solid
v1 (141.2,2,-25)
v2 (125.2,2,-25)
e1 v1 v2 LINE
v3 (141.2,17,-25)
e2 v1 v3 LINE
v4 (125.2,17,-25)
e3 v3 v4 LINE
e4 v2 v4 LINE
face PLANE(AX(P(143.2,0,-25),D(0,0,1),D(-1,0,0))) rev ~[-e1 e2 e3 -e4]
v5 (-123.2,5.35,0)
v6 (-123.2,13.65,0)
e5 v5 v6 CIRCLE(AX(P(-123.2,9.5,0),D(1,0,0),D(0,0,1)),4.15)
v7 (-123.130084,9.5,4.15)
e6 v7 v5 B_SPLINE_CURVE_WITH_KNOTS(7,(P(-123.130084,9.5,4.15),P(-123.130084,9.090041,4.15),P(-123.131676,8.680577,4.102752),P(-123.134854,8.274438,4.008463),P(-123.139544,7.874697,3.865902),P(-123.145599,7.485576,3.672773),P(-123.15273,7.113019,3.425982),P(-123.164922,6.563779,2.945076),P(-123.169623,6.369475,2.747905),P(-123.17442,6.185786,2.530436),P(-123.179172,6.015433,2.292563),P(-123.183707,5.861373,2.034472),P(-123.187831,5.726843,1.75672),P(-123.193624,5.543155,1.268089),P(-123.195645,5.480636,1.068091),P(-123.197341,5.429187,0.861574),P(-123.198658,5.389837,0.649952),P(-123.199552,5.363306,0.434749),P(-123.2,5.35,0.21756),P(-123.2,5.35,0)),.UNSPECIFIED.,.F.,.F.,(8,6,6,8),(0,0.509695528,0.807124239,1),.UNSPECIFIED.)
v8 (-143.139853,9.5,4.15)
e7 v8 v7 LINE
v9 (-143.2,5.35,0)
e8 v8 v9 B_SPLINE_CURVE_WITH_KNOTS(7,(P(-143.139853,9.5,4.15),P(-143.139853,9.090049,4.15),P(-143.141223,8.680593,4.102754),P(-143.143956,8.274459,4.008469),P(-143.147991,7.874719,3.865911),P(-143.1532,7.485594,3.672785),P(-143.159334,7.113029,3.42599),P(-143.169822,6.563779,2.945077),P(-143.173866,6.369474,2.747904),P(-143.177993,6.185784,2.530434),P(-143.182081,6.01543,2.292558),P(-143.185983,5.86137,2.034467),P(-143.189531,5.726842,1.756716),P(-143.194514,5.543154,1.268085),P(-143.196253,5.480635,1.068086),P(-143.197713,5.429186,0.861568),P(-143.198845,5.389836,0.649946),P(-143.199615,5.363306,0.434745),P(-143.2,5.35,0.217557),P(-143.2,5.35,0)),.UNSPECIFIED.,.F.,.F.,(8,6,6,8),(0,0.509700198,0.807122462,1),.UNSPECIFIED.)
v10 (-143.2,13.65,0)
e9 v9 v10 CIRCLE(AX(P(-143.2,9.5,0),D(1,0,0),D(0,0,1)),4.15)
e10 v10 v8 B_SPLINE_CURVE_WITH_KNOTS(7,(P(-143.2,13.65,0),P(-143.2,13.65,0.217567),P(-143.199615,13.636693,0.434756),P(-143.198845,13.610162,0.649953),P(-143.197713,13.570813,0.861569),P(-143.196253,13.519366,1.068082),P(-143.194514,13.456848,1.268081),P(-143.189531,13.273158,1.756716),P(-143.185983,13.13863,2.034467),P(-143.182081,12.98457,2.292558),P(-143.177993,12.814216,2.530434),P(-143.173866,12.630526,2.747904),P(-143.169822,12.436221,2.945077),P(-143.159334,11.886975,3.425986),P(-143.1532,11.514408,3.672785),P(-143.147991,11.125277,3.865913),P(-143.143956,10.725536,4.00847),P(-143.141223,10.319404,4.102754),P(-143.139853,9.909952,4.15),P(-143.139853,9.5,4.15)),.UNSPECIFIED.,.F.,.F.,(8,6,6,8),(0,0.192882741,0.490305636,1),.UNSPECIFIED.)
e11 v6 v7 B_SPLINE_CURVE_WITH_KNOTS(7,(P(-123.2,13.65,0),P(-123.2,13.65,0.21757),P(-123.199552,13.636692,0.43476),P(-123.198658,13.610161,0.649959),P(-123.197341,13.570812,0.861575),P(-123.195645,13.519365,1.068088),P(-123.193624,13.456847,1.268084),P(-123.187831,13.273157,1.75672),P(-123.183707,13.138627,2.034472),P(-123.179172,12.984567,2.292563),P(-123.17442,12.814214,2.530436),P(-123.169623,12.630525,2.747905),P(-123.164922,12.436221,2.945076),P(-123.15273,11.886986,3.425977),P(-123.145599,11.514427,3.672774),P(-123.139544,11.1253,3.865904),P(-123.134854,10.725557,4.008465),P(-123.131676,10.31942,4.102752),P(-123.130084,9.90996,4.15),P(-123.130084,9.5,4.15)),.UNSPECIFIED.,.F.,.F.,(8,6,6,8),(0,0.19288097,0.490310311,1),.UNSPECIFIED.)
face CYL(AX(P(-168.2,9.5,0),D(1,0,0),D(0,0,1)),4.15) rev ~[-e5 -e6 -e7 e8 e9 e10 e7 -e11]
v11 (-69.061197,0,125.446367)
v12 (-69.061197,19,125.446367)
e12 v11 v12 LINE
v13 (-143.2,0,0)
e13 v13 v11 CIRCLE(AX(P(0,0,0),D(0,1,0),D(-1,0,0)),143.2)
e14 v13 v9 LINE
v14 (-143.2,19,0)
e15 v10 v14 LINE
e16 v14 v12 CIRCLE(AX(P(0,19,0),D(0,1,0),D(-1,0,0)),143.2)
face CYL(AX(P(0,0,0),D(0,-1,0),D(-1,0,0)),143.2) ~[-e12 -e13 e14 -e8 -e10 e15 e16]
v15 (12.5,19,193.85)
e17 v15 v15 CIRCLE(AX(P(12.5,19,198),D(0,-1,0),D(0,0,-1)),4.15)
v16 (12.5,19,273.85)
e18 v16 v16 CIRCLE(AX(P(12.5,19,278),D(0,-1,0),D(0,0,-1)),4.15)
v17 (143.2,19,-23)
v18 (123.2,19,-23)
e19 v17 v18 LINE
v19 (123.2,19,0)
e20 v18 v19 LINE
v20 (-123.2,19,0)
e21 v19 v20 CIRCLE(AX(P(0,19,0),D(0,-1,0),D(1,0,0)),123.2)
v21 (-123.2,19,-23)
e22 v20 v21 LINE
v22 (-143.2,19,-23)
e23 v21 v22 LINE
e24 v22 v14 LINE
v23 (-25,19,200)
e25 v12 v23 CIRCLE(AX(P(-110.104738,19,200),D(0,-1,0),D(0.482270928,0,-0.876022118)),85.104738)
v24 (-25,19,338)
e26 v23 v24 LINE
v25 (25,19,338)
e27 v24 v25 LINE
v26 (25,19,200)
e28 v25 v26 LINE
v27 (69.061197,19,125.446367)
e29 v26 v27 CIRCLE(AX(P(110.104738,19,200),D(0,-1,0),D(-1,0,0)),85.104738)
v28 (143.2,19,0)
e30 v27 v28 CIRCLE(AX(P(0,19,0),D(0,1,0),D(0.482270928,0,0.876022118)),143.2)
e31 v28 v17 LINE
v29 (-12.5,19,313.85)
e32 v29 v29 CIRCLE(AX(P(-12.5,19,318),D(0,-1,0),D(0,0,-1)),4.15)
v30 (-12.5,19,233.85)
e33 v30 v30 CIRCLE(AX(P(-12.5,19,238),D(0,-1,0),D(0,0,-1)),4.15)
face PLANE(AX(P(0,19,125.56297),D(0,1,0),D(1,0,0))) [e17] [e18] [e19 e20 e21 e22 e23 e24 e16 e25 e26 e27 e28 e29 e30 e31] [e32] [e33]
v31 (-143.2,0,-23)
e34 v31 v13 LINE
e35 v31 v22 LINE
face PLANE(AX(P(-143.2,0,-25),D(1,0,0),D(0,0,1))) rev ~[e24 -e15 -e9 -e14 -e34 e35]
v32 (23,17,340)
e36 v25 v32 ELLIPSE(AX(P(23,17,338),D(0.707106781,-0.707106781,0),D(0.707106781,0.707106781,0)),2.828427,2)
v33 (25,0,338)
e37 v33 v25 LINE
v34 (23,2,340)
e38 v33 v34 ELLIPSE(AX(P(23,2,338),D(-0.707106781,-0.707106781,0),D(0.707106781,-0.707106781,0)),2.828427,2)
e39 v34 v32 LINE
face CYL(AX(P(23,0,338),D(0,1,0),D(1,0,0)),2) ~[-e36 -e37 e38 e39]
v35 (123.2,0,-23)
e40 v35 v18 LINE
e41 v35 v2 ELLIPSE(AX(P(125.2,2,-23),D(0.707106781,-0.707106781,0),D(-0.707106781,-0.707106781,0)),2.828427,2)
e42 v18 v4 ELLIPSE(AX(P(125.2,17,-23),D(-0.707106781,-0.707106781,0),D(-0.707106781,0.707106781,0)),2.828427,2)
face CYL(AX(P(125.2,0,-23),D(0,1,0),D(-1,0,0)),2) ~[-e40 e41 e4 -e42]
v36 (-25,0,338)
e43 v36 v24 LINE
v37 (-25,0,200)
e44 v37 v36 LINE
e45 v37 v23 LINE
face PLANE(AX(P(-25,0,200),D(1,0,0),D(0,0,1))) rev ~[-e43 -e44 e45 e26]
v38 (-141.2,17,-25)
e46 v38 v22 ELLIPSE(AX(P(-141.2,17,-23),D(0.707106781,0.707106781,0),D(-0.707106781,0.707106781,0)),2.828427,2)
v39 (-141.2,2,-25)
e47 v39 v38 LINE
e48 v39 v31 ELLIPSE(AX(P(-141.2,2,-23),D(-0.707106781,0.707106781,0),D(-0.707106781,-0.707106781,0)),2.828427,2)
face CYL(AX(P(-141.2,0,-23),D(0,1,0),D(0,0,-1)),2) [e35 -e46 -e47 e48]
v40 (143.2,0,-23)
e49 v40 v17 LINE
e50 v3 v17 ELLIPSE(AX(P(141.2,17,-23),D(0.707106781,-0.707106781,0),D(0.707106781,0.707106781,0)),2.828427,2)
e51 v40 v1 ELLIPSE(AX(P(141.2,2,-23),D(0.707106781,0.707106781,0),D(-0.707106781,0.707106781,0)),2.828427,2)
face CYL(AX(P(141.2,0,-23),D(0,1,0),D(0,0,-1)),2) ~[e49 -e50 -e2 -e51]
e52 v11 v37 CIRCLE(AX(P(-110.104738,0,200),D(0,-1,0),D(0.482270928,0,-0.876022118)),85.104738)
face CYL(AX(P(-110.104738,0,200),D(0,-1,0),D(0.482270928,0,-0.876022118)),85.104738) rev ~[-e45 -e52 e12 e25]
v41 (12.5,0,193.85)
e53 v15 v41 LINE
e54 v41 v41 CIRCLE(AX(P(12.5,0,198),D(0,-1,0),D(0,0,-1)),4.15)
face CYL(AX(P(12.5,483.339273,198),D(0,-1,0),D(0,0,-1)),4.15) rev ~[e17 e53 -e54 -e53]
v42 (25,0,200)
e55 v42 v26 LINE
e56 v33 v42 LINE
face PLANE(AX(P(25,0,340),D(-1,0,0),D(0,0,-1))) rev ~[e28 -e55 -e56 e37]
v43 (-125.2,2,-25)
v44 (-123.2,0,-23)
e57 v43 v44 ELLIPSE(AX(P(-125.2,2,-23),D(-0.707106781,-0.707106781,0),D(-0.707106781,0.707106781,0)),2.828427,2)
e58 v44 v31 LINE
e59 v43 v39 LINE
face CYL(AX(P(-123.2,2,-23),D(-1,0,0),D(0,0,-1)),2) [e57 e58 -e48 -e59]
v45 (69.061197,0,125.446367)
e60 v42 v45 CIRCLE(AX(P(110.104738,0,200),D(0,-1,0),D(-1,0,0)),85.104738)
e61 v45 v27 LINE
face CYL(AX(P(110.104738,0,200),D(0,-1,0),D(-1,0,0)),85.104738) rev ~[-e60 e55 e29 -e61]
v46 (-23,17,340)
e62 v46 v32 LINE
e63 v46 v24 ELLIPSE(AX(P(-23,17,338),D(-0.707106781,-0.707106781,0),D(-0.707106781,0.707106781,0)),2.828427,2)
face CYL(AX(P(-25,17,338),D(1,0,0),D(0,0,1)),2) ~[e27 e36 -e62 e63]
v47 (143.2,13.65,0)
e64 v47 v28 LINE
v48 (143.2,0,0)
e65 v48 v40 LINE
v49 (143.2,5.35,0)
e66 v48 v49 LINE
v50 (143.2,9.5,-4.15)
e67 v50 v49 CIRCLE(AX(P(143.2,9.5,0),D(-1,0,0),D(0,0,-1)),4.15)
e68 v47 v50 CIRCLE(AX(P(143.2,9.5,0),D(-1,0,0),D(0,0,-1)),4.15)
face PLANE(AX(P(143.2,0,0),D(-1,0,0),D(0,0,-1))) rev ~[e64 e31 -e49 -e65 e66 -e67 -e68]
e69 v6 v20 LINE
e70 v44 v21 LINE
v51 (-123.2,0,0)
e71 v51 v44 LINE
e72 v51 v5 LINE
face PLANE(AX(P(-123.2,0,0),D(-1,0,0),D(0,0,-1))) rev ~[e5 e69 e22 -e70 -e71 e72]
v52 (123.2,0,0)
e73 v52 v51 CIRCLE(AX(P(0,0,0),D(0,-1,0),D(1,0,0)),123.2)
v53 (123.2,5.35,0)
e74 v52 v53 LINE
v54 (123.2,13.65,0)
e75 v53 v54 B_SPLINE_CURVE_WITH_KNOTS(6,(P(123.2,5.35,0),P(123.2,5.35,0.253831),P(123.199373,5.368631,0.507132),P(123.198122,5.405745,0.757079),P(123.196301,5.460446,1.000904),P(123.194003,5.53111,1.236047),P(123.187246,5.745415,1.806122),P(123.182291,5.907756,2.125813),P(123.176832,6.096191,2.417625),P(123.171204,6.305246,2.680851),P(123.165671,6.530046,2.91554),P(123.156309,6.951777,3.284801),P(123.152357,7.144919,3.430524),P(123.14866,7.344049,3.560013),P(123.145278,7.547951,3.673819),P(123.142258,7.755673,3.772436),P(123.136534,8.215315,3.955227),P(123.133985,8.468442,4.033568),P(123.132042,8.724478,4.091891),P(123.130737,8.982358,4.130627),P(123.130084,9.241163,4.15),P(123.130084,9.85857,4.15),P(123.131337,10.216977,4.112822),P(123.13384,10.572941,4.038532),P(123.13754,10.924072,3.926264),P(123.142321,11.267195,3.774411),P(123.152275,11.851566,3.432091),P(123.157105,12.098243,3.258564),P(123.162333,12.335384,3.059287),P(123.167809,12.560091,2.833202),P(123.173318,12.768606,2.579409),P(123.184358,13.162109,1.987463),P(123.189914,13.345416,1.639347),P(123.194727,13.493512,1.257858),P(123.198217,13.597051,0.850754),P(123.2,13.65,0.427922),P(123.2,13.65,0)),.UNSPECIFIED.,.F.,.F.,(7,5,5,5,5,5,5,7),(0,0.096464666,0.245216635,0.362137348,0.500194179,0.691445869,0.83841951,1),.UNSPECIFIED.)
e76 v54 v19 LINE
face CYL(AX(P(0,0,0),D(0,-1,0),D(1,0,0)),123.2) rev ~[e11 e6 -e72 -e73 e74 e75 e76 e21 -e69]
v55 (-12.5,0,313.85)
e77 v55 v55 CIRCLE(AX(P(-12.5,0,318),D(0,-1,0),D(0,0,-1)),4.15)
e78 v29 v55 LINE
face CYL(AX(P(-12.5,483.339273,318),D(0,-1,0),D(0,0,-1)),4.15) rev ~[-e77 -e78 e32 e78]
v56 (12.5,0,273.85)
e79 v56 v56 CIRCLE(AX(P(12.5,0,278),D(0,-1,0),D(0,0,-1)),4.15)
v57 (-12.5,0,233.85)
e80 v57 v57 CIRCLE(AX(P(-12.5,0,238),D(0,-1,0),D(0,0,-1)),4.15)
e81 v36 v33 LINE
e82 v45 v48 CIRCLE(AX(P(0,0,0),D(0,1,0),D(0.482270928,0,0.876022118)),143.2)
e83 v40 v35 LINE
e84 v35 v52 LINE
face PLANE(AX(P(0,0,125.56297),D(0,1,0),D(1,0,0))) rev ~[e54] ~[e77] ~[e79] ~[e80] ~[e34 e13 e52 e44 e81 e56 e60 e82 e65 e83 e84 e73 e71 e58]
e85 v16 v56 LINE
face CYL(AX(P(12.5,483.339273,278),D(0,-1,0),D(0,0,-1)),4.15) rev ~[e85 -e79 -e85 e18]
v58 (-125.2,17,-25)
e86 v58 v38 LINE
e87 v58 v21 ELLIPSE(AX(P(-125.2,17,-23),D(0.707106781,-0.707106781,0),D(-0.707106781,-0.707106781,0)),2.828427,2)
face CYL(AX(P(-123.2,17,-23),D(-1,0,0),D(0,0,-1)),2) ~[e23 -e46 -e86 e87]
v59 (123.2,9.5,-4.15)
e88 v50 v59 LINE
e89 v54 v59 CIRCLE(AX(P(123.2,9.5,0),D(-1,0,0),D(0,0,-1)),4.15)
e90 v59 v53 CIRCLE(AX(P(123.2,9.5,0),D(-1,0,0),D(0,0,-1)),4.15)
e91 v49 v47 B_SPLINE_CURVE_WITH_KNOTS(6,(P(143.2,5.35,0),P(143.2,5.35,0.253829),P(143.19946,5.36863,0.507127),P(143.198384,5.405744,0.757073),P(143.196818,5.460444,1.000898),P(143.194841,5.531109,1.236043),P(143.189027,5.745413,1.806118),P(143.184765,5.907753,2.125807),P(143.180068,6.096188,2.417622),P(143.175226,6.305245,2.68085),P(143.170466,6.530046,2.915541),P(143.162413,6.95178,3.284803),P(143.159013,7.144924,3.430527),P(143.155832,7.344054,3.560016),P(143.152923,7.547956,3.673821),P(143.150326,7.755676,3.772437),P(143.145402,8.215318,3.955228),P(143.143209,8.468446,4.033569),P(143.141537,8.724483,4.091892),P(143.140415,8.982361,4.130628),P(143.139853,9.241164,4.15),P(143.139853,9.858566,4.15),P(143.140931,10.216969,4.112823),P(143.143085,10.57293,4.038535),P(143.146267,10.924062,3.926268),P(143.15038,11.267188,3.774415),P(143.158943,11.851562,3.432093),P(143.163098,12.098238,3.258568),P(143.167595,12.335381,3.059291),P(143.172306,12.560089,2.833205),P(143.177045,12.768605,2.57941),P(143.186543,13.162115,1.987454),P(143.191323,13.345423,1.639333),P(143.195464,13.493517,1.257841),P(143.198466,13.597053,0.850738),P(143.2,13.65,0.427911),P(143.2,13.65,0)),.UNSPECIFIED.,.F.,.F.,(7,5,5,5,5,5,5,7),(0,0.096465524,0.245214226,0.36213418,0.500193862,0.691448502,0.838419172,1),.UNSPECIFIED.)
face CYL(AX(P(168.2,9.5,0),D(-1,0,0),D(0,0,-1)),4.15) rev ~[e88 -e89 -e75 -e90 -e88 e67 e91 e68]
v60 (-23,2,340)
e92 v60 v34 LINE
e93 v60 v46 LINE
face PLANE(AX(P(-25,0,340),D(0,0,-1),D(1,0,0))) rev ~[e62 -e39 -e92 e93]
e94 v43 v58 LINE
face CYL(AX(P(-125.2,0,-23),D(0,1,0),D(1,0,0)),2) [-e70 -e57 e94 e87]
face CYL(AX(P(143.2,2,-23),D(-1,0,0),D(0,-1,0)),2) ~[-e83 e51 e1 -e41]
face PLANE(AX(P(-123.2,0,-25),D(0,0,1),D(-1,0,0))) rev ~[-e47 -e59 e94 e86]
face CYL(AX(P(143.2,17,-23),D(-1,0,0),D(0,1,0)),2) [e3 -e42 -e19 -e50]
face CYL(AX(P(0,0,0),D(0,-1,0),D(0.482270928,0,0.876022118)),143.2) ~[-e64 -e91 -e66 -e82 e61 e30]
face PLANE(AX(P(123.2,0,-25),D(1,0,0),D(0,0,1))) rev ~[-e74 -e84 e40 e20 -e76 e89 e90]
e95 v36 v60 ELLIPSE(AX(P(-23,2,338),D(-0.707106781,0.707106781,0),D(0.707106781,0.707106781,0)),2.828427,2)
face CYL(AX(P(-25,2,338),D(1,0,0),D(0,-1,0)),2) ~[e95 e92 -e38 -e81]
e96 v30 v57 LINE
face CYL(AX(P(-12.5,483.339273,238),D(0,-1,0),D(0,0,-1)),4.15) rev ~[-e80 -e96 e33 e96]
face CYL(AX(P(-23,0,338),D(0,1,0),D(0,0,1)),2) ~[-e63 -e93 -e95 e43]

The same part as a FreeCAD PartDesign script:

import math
import FreeCAD as App
import Part
import Sketcher


def edges_at(feature, points):
    """Names of the edges that pass closest to the given points."""
    edges = feature.Shape.Edges
    near = lambda p: min(range(len(edges)), key=lambda i: edges[i].distToShape(Part.Vertex(*p))[0])
    return sorted({f"Edge{near(p) + 1}" for p in points})

doc = App.newDocument("Part")
body = doc.addObject("PartDesign::Body", "Body")

sketch1 = body.newObject("Sketcher::SketchObject", "Sketch")
sketch1.AttachmentSupport = (doc.getObject("XZ_Plane"), [""])
sketch1.MapMode = "FlatFace"
sketch1.addGeometry([
    Part.LineSegment(App.Vector(-25, 200, 0), App.Vector(-25, 340, 0)),
    Part.LineSegment(App.Vector(-25, 340, 0), App.Vector(25, 340, 0)),
    Part.LineSegment(App.Vector(25, 340, 0), App.Vector(25, 200, 0)),
    Part.ArcOfCircle(Part.Circle(App.Vector(110, 200, 0), App.Vector(0, 0, 1), 85), math.radians(-180), math.radians(-119)),
    Part.ArcOfCircle(Part.Circle(App.Vector(0, 0, 0), App.Vector(0, 0, 1), 143), math.radians(0), math.radians(61)),
    Part.LineSegment(App.Vector(143, 0, 0), App.Vector(143, -25, 0)),
    Part.LineSegment(App.Vector(143, -25, 0), App.Vector(123, -25, 0)),
    Part.LineSegment(App.Vector(123, -25, 0), App.Vector(123, 0, 0)),
    Part.ArcOfCircle(Part.Circle(App.Vector(0, 0, 0), App.Vector(0, 0, 1), 123), math.radians(0), math.radians(180)),
    Part.LineSegment(App.Vector(-123, 0, 0), App.Vector(-123, -25, 0)),
    Part.LineSegment(App.Vector(-123, -25, 0), App.Vector(-143, -25, 0)),
    Part.LineSegment(App.Vector(-143, -25, 0), App.Vector(-143, 0, 0)),
    Part.ArcOfCircle(Part.Circle(App.Vector(0, 0, 0), App.Vector(0, 0, 1), 143), math.radians(119), math.radians(180)),
    Part.ArcOfCircle(Part.Circle(App.Vector(-110, 200, 0), App.Vector(0, 0, 1), 85), math.radians(-61), math.radians(0)),
], False)
sketch1.addConstraint([
    Sketcher.Constraint("Coincident", 0, 2, 1, 1),
    Sketcher.Constraint("Coincident", 1, 2, 2, 1),
    Sketcher.Constraint("Tangent", 2, 2, 3, 1),
    Sketcher.Constraint("Tangent", 3, 2, 4, 2),
    Sketcher.Constraint("Tangent", 4, 1, 5, 1),
    Sketcher.Constraint("Coincident", 5, 2, 6, 1),
    Sketcher.Constraint("Coincident", 6, 2, 7, 1),
    Sketcher.Constraint("Tangent", 7, 2, 8, 1),
    Sketcher.Constraint("Tangent", 8, 2, 9, 1),
    Sketcher.Constraint("Coincident", 9, 2, 10, 1),
    Sketcher.Constraint("Coincident", 10, 2, 11, 1),
    Sketcher.Constraint("Tangent", 11, 2, 12, 2),
    Sketcher.Constraint("Tangent", 12, 1, 13, 1),
    Sketcher.Constraint("Tangent", 13, 2, 0, 1),
    Sketcher.Constraint("Vertical", 0),
    Sketcher.Constraint("Horizontal", 1),
    Sketcher.Constraint("Vertical", 2),
    Sketcher.Constraint("Vertical", 5),
    Sketcher.Constraint("Horizontal", 6),
    Sketcher.Constraint("Vertical", 7),
    Sketcher.Constraint("Vertical", 9),
    Sketcher.Constraint("Horizontal", 10),
    Sketcher.Constraint("Vertical", 11),
    Sketcher.Constraint("Coincident", 4, 3, -1, 1),
    Sketcher.Constraint("Coincident", 8, 3, -1, 1),
    Sketcher.Constraint("Coincident", 12, 3, -1, 1),
    Sketcher.Constraint("Equal", 4, 12),
    Sketcher.Constraint("Equal", 3, 13),
    Sketcher.Constraint("Horizontal", 3, 3, 13, 3),
    Sketcher.Constraint("Horizontal", 6, 2, 9, 2),
    Sketcher.Constraint("Radius", 4, 143.2),
    Sketcher.Constraint("Radius", 8, 123.2),
    Sketcher.Constraint("DistanceX", 1, 1, 1, 2, 50.0),
    Sketcher.Constraint("DistanceY", 0, 1, 0, 2, 140.0),
    Sketcher.Constraint("DistanceY", 5, 2, 5, 1, 25.0),
    Sketcher.Constraint("DistanceY", -1, 1, 3, 3, 200.0),
])
pad1 = body.newObject("PartDesign::Pad", "Pad")
pad1.Profile = sketch1
pad1.Length = 19
pad1.Reversed = True
doc.recompute()

fillet = body.newObject("PartDesign::Fillet", "Fillet")
fillet.Base = (pad1, edges_at(pad1, [
    (-133.2, 19, -25),
    (-133.2, 0, -25),
    (-143.2, 9.5, -25),
    (-123.2, 9.5, -25),
]))
fillet.Radius = 2
doc.recompute()

fillet2 = body.newObject("PartDesign::Fillet", "Fillet001")
fillet2.Base = (fillet, edges_at(fillet, [
    (133.2, 0, -25),
    (123.2, 9.5, -25),
    (143.2, 9.5, -25),
    (133.2, 19, -25),
]))
fillet2.Radius = 2
doc.recompute()

fillet3 = body.newObject("PartDesign::Fillet", "Fillet002")
fillet3.Base = (fillet2, edges_at(fillet2, [
    (0, 0, 340),
    (25, 9.5, 340),
    (-25, 9.5, 340),
    (0, 19, 340),
]))
fillet3.Radius = 2

sketch2 = body.newObject("Sketcher::SketchObject", "Sketch001")
sketch2.AttachmentSupport = (doc.getObject("XZ_Plane"), [""])
sketch2.MapMode = "FlatFace"
sketch2.AttachmentOffset = App.Placement(App.Vector(0, 0, -19), App.Rotation())
sketch2.addGeometry([
    Part.Circle(App.Vector(-12.5, 318, 0), App.Vector(0, 0, 1), 4.2),
    Part.Circle(App.Vector(12.5, 278, 0), App.Vector(0, 0, 1), 4.2),
    Part.Circle(App.Vector(12.5, 198, 0), App.Vector(0, 0, 1), 4.2),
    Part.Circle(App.Vector(-12.5, 238, 0), App.Vector(0, 0, 1), 4.2),
], False)
sketch2.addConstraint([
    Sketcher.Constraint("Equal", 0, 1),
    Sketcher.Constraint("Equal", 1, 2),
    Sketcher.Constraint("Equal", 2, 3),
    Sketcher.Constraint("Vertical", 1, 3, 2, 3),
    Sketcher.Constraint("Vertical", 0, 3, 3, 3),
    Sketcher.Constraint("Diameter", 0, 8.3),
    Sketcher.Constraint("DistanceY", -1, 1, 0, 3, 318.0),
    Sketcher.Constraint("DistanceY", -1, 1, 1, 3, 278.0),
    Sketcher.Constraint("DistanceY", -1, 1, 2, 3, 198.0),
    Sketcher.Constraint("DistanceY", -1, 1, 3, 3, 238.0),
    Sketcher.Constraint("DistanceX", 0, 3, 1, 3, 25.0),
    Sketcher.Constraint("DistanceX", 0, 3, -1, 1, 12.5),
])
doc.recompute()
hole = body.newObject("PartDesign::Hole", "Hole")
hole.Profile = sketch2
hole.ThreadType = "None"
hole.Diameter = 8.3
hole.DepthType = "ThroughAll"
hole.Reversed = True

sketch3 = body.newObject("Sketcher::SketchObject", "Sketch002")
sketch3.AttachmentSupport = (doc.getObject("YZ_Plane"), [""])
sketch3.MapMode = "FlatFace"
sketch3.AttachmentOffset = App.Placement(App.Vector(0, 0, 143.2), App.Rotation())
sketch3.addGeometry(Part.Circle(App.Vector(9.5, 0, 0), App.Vector(0, 0, 1), 4.2), False)
sketch3.addConstraint([
    Sketcher.Constraint("PointOnObject", 0, 3, -1),
    Sketcher.Constraint("Diameter", 0, 8.3),
    Sketcher.Constraint("DistanceX", -1, 1, 0, 3, 9.5),
])
doc.recompute()
hole2 = body.newObject("PartDesign::Hole", "Hole001")
hole2.Profile = sketch3
hole2.ThreadType = "None"
hole2.Diameter = 8.3
hole2.DepthType = "Dimension"
hole2.Depth = 25
hole2.DrillPoint = "Angled"
hole2.DrillPointAngle = 118

sketch4 = body.newObject("Sketcher::SketchObject", "Sketch003")
sketch4.AttachmentSupport = (doc.getObject("YZ_Plane"), [""])
sketch4.MapMode = "FlatFace"
sketch4.AttachmentOffset = App.Placement(App.Vector(0, 0, -143.2), App.Rotation())
sketch4.addGeometry(Part.Circle(App.Vector(9.5, 0, 0), App.Vector(0, 0, 1), 4.2), False)
sketch4.addConstraint([
    Sketcher.Constraint("PointOnObject", 0, 3, -1),
    Sketcher.Constraint("Diameter", 0, 8.3),
    Sketcher.Constraint("DistanceX", -1, 1, 0, 3, 9.5),
])
doc.recompute()
hole3 = body.newObject("PartDesign::Hole", "Hole002")
hole3.Profile = sketch4
hole3.ThreadType = "None"
hole3.Diameter = 8.3
hole3.DepthType = "Dimension"
hole3.Depth = 25
hole3.DrillPoint = "Angled"
hole3.DrillPointAngle = 118
hole3.Reversed = True

doc.recompute()
